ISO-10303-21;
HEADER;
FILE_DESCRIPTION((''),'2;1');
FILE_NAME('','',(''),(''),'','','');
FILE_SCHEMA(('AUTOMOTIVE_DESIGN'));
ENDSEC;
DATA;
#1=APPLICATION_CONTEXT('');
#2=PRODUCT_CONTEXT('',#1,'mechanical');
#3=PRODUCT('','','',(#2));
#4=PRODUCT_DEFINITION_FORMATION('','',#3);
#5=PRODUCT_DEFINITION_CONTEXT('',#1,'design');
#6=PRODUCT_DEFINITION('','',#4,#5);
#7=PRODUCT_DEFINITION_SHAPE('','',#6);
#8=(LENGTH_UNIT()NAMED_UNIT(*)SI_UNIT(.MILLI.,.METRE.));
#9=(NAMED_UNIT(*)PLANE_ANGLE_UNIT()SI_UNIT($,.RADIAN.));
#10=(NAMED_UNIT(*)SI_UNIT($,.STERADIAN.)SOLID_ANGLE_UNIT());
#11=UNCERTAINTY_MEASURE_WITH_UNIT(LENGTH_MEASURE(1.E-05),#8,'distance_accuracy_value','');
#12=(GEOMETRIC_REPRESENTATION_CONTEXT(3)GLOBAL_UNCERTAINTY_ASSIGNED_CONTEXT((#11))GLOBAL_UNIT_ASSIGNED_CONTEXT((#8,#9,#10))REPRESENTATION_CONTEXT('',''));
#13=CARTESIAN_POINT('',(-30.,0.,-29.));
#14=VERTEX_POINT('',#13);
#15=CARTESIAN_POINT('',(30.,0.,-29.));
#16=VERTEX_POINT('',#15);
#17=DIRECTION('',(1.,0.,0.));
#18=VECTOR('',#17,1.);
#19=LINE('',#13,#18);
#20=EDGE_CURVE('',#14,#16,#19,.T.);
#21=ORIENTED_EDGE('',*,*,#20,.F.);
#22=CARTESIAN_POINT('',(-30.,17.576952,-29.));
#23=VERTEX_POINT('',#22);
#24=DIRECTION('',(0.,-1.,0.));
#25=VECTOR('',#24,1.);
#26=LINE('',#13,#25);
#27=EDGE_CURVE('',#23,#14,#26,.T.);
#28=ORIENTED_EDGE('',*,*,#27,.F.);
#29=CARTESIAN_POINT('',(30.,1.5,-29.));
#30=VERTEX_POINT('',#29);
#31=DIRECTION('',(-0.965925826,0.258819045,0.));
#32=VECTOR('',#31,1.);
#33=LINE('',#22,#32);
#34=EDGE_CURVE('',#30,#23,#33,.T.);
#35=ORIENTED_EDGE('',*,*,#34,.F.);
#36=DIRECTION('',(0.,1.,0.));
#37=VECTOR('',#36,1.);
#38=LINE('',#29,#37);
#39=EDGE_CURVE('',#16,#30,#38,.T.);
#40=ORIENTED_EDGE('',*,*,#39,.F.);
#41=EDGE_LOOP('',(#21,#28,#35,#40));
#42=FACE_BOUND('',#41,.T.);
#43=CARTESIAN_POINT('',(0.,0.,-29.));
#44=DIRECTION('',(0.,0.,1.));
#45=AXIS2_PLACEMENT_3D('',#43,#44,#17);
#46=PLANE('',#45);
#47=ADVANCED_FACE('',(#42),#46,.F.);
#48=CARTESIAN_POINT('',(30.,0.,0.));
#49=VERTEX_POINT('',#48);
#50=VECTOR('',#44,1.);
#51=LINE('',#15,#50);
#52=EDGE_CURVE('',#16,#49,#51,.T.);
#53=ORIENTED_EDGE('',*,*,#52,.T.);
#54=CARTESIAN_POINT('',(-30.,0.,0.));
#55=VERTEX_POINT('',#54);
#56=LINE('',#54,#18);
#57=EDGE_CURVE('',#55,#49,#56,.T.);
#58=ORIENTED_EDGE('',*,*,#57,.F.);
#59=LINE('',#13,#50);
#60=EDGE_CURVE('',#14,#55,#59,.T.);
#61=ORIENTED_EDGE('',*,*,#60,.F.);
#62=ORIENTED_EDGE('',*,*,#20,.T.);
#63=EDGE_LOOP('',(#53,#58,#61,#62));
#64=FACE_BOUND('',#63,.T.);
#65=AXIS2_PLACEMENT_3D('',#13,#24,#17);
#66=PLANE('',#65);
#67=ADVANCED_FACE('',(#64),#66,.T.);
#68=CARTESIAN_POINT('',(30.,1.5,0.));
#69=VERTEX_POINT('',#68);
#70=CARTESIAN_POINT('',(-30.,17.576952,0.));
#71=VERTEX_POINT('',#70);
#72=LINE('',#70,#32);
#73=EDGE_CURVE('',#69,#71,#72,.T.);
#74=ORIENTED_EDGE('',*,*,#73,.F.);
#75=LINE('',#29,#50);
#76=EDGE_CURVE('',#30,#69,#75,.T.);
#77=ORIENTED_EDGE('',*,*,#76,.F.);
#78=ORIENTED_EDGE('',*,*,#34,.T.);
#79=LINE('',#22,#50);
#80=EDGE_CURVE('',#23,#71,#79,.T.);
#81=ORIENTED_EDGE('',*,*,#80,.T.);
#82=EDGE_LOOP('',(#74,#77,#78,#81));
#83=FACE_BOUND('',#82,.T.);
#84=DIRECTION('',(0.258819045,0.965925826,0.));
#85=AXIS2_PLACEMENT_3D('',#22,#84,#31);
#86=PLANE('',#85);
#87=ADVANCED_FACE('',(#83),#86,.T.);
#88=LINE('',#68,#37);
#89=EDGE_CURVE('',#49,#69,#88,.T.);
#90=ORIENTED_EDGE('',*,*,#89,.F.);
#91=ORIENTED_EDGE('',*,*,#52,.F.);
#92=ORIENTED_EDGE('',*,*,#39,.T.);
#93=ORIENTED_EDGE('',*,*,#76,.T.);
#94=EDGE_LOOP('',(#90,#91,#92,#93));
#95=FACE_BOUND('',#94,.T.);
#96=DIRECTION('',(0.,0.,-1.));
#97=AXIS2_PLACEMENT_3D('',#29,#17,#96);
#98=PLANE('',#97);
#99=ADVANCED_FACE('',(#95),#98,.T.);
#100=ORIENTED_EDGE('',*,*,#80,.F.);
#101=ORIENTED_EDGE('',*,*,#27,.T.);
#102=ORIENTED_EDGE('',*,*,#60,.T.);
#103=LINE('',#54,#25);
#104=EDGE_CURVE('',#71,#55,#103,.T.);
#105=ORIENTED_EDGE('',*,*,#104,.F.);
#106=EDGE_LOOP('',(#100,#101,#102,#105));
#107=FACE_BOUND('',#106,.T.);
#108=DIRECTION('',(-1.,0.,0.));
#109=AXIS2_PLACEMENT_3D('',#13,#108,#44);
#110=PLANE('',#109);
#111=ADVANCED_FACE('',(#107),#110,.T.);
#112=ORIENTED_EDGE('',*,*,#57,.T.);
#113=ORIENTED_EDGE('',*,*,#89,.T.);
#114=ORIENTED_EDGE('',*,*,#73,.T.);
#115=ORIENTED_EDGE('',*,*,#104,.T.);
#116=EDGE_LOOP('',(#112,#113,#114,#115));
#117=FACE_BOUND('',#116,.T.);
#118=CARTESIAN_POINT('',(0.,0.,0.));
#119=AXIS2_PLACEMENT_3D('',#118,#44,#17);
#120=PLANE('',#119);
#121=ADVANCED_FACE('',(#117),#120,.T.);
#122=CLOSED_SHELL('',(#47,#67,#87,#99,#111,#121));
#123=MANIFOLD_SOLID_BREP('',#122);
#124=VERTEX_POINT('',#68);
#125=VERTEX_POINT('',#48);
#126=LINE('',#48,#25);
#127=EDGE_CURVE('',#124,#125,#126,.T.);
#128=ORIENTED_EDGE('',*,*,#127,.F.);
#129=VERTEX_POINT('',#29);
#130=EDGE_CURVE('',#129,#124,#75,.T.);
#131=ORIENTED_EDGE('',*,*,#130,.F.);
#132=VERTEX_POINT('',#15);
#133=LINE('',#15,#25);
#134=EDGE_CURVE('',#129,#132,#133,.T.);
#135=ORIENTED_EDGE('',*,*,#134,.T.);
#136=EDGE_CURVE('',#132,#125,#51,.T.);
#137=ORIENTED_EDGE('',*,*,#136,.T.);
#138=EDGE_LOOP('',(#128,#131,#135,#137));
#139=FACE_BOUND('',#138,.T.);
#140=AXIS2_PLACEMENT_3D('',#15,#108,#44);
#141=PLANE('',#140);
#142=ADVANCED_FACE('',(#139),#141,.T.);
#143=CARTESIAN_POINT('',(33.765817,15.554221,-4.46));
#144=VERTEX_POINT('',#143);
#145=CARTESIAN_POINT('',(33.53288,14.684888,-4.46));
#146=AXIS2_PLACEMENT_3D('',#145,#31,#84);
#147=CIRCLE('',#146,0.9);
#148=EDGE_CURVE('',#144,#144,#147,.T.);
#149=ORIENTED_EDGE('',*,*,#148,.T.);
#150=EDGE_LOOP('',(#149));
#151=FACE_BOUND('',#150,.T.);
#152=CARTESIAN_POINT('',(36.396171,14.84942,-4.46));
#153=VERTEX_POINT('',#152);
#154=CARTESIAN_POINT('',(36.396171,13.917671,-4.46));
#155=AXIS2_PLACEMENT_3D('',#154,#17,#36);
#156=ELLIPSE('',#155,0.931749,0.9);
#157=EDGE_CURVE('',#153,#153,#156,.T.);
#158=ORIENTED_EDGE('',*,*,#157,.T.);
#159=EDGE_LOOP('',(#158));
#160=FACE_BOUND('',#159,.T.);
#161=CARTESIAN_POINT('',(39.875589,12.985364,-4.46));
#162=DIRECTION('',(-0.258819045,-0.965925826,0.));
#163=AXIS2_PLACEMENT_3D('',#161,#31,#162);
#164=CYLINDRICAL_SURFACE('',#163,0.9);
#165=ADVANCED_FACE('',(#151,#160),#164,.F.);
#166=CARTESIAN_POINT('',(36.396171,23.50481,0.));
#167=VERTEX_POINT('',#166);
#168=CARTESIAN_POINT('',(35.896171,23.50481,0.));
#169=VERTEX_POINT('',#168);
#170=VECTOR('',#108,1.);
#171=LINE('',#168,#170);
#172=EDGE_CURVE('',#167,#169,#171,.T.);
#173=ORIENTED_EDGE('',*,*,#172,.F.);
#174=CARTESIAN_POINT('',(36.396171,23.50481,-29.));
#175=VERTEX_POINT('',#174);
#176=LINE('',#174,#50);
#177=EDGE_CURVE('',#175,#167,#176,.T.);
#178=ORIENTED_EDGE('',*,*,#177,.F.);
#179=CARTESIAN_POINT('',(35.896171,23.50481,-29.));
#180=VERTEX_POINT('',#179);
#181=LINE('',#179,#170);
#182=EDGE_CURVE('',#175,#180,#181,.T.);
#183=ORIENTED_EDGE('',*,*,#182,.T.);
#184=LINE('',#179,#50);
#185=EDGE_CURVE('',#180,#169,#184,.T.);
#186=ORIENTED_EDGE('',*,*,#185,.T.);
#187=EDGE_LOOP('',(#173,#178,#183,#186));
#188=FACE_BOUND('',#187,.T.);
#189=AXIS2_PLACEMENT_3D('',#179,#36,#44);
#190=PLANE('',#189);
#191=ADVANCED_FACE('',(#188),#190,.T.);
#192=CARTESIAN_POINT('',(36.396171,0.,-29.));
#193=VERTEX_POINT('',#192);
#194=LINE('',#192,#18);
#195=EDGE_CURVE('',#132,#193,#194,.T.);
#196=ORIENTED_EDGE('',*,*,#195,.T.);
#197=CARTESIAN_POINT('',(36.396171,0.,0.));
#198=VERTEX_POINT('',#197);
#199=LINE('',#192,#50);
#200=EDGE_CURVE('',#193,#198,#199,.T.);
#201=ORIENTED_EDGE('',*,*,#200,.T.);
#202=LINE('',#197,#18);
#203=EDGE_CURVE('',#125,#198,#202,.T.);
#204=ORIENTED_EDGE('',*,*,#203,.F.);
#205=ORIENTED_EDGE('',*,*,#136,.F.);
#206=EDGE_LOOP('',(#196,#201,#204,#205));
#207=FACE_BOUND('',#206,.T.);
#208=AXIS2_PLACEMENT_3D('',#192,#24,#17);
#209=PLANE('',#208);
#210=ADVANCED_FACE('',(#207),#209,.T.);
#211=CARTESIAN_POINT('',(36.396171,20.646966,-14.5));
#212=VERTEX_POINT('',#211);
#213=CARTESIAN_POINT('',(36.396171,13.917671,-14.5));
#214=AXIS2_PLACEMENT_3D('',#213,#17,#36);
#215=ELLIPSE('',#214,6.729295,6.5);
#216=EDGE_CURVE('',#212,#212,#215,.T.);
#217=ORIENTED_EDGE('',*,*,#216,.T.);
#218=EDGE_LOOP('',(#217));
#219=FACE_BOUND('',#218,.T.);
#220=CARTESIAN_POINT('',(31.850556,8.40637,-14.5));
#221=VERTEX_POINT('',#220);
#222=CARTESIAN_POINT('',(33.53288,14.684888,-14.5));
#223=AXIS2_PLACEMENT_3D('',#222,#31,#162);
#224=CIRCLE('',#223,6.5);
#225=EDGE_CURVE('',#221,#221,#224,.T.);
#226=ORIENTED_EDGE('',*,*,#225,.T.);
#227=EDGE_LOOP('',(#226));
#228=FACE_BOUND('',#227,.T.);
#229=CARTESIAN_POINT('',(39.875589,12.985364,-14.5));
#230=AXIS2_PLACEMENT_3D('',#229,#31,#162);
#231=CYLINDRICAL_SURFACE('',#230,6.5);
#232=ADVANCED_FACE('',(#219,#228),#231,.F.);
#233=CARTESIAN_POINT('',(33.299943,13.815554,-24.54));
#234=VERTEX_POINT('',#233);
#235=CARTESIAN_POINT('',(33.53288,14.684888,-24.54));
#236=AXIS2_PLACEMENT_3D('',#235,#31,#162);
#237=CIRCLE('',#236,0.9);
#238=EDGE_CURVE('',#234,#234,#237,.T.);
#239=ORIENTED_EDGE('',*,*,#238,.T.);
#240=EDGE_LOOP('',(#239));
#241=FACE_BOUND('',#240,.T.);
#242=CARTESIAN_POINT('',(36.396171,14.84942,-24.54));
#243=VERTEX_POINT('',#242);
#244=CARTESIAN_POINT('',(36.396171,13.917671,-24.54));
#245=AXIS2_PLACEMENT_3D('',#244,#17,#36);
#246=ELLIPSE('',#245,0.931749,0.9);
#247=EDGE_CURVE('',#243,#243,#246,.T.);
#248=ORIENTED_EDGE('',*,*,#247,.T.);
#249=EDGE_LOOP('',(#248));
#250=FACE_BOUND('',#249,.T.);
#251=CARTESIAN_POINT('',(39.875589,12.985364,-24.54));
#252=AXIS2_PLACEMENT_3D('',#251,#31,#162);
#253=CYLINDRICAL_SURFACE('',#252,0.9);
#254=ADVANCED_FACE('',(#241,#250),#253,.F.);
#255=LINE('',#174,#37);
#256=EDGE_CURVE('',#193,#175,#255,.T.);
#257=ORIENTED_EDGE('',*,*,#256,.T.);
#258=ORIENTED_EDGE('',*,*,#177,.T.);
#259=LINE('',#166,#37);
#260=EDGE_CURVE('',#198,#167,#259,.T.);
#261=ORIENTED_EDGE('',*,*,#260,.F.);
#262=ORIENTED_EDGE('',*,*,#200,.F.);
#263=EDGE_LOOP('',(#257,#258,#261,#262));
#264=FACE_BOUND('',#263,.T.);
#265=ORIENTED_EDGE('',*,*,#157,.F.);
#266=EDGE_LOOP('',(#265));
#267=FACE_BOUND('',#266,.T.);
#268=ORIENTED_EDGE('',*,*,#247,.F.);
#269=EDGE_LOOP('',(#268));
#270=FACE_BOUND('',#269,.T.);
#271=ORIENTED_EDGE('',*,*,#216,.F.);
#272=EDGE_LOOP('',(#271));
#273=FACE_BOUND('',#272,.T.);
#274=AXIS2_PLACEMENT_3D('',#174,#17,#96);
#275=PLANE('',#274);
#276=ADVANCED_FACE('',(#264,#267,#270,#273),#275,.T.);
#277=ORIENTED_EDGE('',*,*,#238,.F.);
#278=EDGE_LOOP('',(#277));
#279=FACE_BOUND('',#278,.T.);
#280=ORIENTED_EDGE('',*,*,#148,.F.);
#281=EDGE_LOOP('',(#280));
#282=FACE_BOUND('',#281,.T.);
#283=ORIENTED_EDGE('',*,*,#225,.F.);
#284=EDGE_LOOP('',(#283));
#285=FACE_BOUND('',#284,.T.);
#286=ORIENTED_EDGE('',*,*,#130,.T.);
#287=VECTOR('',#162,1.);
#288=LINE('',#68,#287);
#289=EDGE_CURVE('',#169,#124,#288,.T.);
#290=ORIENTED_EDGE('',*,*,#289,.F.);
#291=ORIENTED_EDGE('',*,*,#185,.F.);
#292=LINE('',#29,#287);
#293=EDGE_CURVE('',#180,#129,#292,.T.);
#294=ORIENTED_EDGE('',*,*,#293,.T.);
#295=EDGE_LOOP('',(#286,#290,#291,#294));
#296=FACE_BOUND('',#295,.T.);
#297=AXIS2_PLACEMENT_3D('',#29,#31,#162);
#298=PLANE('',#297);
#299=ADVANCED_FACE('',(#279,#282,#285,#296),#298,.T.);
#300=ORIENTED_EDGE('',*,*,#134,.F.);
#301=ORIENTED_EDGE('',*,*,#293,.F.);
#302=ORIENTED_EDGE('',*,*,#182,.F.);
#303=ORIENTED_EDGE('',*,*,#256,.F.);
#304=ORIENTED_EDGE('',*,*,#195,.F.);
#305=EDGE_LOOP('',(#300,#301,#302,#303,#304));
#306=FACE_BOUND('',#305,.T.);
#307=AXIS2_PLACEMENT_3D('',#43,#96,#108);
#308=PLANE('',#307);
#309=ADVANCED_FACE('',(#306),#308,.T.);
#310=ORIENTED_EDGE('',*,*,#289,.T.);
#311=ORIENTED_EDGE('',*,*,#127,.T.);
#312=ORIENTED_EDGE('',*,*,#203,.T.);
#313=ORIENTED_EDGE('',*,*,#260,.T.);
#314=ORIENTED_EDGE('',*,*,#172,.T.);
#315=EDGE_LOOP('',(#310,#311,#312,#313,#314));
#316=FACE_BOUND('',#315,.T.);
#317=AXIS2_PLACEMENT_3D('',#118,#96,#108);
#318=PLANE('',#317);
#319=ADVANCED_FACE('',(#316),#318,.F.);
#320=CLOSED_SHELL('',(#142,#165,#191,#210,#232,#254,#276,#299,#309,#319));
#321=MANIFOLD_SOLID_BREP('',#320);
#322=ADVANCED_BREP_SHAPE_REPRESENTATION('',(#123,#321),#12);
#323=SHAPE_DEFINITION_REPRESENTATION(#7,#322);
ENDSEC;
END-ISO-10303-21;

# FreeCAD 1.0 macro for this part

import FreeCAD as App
import Part
import Sketcher

V = App.Vector
Q = App.Units.Quantity


def add_polygon(sketch, points):
    """Adds a closed chain of lines whose ends are joined by coincident constraints."""
    first, n = sketch.GeometryCount, len(points)
    for a, b in zip(points, points[1:] + points[:1]):
        sketch.addGeometry(Part.LineSegment(App.Vector(*a, 0), App.Vector(*b, 0)), False)
    for i in range(n):
        sketch.addConstraint(Sketcher.Constraint("Coincident", first + i, 2, first + (i + 1) % n, 1))

doc = App.newDocument("Part")
body = doc.addObject("PartDesign::Body", "Body")

# Sketch on XY plane
sketch1 = body.newObject("Sketcher::SketchObject", "Sketch")
sketch1.AttachmentSupport = (doc.getObject("XY_Plane"), [""])
sketch1.MapMode = "FlatFace"
add_polygon(sketch1, [(-30, 0), (30, 0), (30, 1.5), (-30, 17.6)])  # lines 0-3
sketch1.addConstraint([
    Sketcher.Constraint("Horizontal", 0),
    Sketcher.Constraint("Vertical", 1),
    Sketcher.Constraint("Vertical", 3),
    Sketcher.Constraint("Symmetric", 0, 2, 3, 2, -1, 1),
    Sketcher.Constraint("DistanceX", 0, 1, 0, 2, 60.0),
    Sketcher.Constraint("Angle", 2, Q("165 deg")),
    Sketcher.Constraint("DistanceY", 1, 1, 1, 2, 1.5),
])
pad1 = body.newObject("PartDesign::Pad", "Pad")
pad1.Profile = sketch1
pad1.Length = 29
pad1.Reversed = True
body2 = doc.addObject("PartDesign::Body", "Body001")

# Sketch on XY plane
sketch2 = body2.newObject("Sketcher::SketchObject", "Sketch001")
sketch2.AttachmentSupport = (doc.getObject("XY_Plane001"), [""])
sketch2.MapMode = "FlatFace"
add_polygon(sketch2, [(30, 1.5), (30, 0), (36.4, 0), (36.4, 23.5), (35.9, 23.5)])  # lines 0-4
sketch2.addConstraint([
    Sketcher.Constraint("Vertical", 0),
    Sketcher.Constraint("Horizontal", 1),
    Sketcher.Constraint("Vertical", 2),
    Sketcher.Constraint("Horizontal", 3),
    Sketcher.Constraint("PointOnObject", 0, 2, -1),
    Sketcher.Constraint("Angle", 4, Q("-105 deg")),
    Sketcher.Constraint("DistanceX", 3, 2, 3, 1, 0.5),
    Sketcher.Constraint("DistanceY", 0, 2, 0, 1, 1.5),
    Sketcher.Constraint("DistanceX", -1, 1, 0, 2, 30.0),
    Sketcher.Constraint("DistanceX", 1, 1, 1, 2, 6.396171),
])
pad2 = body2.newObject("PartDesign::Pad", "Pad001")
pad2.Profile = sketch2
pad2.Length = 29
pad2.Reversed = True

# Sketch on an angled plane
sketch3 = body2.newObject("Sketcher::SketchObject", "Sketch002")
sketch3.Placement = App.Placement(V(27.615381, -7.399519, 0), App.Rotation(V(0, 0, 1), V(0.258819045, 0.965925826, 0), V(-0.965925826, 0.258819045, 0), "ZXY"))
sketch3.addGeometry(Part.Circle(V(-14, 23, 0), V(0, 0, 1), 6), False)
sketch3.addConstraint([
    Sketcher.Constraint("Diameter", 0, 13.0),
    Sketcher.Constraint("DistanceX", 0, 3, -1, 1, 14.5),
    Sketcher.Constraint("DistanceY", -1, 1, 0, 3, 22.86346),
])
pocket1 = body2.newObject("PartDesign::Pocket", "Pocket")
pocket1.Profile = sketch3
pocket1.Type = "ThroughAll"

# Sketch on an angled plane
sketch4 = body2.newObject("Sketcher::SketchObject", "Sketch003")
sketch4.Placement = App.Placement(V(27.615381, -7.399519, 0), App.Rotation(V(0, 0, 1), V(0.258819045, 0.965925826, 0), V(-0.965925826, 0.258819045, 0), "ZXY"))
sketch4.addGeometry([
    Part.Circle(V(-14.5, 22.9, 0), V(0, 0, 1), 6.5),
    Part.Circle(V(-24.5, 22.9, 0), V(0, 0, 1), 0.9),
    Part.Circle(V(-4.5, 22.9, 0), V(0, 0, 1), 0.9),
], False)
sketch4.addConstraint([
    Sketcher.Constraint("Equal", 1, 2),
    Sketcher.Constraint("Horizontal", 0, 3, 1, 3),
    Sketcher.Constraint("Horizontal", 1, 3, 2, 3),
    Sketcher.Constraint("Diameter", 0, 13.0),
    Sketcher.Constraint("Diameter", 1, 1.8),
    Sketcher.Constraint("DistanceX", 0, 3, -1, 1, 14.5),
    Sketcher.Constraint("DistanceX", 1, 3, -1, 1, 24.54),
    Sketcher.Constraint("DistanceX", 2, 3, -1, 1, 4.46),
    Sketcher.Constraint("DistanceY", -1, 1, 0, 3, 22.86346),
])
pocket2 = body2.newObject("PartDesign::Pocket", "Pocket001")
pocket2.Profile = sketch4
pocket2.Type = "ThroughAll"

doc.recompute()
